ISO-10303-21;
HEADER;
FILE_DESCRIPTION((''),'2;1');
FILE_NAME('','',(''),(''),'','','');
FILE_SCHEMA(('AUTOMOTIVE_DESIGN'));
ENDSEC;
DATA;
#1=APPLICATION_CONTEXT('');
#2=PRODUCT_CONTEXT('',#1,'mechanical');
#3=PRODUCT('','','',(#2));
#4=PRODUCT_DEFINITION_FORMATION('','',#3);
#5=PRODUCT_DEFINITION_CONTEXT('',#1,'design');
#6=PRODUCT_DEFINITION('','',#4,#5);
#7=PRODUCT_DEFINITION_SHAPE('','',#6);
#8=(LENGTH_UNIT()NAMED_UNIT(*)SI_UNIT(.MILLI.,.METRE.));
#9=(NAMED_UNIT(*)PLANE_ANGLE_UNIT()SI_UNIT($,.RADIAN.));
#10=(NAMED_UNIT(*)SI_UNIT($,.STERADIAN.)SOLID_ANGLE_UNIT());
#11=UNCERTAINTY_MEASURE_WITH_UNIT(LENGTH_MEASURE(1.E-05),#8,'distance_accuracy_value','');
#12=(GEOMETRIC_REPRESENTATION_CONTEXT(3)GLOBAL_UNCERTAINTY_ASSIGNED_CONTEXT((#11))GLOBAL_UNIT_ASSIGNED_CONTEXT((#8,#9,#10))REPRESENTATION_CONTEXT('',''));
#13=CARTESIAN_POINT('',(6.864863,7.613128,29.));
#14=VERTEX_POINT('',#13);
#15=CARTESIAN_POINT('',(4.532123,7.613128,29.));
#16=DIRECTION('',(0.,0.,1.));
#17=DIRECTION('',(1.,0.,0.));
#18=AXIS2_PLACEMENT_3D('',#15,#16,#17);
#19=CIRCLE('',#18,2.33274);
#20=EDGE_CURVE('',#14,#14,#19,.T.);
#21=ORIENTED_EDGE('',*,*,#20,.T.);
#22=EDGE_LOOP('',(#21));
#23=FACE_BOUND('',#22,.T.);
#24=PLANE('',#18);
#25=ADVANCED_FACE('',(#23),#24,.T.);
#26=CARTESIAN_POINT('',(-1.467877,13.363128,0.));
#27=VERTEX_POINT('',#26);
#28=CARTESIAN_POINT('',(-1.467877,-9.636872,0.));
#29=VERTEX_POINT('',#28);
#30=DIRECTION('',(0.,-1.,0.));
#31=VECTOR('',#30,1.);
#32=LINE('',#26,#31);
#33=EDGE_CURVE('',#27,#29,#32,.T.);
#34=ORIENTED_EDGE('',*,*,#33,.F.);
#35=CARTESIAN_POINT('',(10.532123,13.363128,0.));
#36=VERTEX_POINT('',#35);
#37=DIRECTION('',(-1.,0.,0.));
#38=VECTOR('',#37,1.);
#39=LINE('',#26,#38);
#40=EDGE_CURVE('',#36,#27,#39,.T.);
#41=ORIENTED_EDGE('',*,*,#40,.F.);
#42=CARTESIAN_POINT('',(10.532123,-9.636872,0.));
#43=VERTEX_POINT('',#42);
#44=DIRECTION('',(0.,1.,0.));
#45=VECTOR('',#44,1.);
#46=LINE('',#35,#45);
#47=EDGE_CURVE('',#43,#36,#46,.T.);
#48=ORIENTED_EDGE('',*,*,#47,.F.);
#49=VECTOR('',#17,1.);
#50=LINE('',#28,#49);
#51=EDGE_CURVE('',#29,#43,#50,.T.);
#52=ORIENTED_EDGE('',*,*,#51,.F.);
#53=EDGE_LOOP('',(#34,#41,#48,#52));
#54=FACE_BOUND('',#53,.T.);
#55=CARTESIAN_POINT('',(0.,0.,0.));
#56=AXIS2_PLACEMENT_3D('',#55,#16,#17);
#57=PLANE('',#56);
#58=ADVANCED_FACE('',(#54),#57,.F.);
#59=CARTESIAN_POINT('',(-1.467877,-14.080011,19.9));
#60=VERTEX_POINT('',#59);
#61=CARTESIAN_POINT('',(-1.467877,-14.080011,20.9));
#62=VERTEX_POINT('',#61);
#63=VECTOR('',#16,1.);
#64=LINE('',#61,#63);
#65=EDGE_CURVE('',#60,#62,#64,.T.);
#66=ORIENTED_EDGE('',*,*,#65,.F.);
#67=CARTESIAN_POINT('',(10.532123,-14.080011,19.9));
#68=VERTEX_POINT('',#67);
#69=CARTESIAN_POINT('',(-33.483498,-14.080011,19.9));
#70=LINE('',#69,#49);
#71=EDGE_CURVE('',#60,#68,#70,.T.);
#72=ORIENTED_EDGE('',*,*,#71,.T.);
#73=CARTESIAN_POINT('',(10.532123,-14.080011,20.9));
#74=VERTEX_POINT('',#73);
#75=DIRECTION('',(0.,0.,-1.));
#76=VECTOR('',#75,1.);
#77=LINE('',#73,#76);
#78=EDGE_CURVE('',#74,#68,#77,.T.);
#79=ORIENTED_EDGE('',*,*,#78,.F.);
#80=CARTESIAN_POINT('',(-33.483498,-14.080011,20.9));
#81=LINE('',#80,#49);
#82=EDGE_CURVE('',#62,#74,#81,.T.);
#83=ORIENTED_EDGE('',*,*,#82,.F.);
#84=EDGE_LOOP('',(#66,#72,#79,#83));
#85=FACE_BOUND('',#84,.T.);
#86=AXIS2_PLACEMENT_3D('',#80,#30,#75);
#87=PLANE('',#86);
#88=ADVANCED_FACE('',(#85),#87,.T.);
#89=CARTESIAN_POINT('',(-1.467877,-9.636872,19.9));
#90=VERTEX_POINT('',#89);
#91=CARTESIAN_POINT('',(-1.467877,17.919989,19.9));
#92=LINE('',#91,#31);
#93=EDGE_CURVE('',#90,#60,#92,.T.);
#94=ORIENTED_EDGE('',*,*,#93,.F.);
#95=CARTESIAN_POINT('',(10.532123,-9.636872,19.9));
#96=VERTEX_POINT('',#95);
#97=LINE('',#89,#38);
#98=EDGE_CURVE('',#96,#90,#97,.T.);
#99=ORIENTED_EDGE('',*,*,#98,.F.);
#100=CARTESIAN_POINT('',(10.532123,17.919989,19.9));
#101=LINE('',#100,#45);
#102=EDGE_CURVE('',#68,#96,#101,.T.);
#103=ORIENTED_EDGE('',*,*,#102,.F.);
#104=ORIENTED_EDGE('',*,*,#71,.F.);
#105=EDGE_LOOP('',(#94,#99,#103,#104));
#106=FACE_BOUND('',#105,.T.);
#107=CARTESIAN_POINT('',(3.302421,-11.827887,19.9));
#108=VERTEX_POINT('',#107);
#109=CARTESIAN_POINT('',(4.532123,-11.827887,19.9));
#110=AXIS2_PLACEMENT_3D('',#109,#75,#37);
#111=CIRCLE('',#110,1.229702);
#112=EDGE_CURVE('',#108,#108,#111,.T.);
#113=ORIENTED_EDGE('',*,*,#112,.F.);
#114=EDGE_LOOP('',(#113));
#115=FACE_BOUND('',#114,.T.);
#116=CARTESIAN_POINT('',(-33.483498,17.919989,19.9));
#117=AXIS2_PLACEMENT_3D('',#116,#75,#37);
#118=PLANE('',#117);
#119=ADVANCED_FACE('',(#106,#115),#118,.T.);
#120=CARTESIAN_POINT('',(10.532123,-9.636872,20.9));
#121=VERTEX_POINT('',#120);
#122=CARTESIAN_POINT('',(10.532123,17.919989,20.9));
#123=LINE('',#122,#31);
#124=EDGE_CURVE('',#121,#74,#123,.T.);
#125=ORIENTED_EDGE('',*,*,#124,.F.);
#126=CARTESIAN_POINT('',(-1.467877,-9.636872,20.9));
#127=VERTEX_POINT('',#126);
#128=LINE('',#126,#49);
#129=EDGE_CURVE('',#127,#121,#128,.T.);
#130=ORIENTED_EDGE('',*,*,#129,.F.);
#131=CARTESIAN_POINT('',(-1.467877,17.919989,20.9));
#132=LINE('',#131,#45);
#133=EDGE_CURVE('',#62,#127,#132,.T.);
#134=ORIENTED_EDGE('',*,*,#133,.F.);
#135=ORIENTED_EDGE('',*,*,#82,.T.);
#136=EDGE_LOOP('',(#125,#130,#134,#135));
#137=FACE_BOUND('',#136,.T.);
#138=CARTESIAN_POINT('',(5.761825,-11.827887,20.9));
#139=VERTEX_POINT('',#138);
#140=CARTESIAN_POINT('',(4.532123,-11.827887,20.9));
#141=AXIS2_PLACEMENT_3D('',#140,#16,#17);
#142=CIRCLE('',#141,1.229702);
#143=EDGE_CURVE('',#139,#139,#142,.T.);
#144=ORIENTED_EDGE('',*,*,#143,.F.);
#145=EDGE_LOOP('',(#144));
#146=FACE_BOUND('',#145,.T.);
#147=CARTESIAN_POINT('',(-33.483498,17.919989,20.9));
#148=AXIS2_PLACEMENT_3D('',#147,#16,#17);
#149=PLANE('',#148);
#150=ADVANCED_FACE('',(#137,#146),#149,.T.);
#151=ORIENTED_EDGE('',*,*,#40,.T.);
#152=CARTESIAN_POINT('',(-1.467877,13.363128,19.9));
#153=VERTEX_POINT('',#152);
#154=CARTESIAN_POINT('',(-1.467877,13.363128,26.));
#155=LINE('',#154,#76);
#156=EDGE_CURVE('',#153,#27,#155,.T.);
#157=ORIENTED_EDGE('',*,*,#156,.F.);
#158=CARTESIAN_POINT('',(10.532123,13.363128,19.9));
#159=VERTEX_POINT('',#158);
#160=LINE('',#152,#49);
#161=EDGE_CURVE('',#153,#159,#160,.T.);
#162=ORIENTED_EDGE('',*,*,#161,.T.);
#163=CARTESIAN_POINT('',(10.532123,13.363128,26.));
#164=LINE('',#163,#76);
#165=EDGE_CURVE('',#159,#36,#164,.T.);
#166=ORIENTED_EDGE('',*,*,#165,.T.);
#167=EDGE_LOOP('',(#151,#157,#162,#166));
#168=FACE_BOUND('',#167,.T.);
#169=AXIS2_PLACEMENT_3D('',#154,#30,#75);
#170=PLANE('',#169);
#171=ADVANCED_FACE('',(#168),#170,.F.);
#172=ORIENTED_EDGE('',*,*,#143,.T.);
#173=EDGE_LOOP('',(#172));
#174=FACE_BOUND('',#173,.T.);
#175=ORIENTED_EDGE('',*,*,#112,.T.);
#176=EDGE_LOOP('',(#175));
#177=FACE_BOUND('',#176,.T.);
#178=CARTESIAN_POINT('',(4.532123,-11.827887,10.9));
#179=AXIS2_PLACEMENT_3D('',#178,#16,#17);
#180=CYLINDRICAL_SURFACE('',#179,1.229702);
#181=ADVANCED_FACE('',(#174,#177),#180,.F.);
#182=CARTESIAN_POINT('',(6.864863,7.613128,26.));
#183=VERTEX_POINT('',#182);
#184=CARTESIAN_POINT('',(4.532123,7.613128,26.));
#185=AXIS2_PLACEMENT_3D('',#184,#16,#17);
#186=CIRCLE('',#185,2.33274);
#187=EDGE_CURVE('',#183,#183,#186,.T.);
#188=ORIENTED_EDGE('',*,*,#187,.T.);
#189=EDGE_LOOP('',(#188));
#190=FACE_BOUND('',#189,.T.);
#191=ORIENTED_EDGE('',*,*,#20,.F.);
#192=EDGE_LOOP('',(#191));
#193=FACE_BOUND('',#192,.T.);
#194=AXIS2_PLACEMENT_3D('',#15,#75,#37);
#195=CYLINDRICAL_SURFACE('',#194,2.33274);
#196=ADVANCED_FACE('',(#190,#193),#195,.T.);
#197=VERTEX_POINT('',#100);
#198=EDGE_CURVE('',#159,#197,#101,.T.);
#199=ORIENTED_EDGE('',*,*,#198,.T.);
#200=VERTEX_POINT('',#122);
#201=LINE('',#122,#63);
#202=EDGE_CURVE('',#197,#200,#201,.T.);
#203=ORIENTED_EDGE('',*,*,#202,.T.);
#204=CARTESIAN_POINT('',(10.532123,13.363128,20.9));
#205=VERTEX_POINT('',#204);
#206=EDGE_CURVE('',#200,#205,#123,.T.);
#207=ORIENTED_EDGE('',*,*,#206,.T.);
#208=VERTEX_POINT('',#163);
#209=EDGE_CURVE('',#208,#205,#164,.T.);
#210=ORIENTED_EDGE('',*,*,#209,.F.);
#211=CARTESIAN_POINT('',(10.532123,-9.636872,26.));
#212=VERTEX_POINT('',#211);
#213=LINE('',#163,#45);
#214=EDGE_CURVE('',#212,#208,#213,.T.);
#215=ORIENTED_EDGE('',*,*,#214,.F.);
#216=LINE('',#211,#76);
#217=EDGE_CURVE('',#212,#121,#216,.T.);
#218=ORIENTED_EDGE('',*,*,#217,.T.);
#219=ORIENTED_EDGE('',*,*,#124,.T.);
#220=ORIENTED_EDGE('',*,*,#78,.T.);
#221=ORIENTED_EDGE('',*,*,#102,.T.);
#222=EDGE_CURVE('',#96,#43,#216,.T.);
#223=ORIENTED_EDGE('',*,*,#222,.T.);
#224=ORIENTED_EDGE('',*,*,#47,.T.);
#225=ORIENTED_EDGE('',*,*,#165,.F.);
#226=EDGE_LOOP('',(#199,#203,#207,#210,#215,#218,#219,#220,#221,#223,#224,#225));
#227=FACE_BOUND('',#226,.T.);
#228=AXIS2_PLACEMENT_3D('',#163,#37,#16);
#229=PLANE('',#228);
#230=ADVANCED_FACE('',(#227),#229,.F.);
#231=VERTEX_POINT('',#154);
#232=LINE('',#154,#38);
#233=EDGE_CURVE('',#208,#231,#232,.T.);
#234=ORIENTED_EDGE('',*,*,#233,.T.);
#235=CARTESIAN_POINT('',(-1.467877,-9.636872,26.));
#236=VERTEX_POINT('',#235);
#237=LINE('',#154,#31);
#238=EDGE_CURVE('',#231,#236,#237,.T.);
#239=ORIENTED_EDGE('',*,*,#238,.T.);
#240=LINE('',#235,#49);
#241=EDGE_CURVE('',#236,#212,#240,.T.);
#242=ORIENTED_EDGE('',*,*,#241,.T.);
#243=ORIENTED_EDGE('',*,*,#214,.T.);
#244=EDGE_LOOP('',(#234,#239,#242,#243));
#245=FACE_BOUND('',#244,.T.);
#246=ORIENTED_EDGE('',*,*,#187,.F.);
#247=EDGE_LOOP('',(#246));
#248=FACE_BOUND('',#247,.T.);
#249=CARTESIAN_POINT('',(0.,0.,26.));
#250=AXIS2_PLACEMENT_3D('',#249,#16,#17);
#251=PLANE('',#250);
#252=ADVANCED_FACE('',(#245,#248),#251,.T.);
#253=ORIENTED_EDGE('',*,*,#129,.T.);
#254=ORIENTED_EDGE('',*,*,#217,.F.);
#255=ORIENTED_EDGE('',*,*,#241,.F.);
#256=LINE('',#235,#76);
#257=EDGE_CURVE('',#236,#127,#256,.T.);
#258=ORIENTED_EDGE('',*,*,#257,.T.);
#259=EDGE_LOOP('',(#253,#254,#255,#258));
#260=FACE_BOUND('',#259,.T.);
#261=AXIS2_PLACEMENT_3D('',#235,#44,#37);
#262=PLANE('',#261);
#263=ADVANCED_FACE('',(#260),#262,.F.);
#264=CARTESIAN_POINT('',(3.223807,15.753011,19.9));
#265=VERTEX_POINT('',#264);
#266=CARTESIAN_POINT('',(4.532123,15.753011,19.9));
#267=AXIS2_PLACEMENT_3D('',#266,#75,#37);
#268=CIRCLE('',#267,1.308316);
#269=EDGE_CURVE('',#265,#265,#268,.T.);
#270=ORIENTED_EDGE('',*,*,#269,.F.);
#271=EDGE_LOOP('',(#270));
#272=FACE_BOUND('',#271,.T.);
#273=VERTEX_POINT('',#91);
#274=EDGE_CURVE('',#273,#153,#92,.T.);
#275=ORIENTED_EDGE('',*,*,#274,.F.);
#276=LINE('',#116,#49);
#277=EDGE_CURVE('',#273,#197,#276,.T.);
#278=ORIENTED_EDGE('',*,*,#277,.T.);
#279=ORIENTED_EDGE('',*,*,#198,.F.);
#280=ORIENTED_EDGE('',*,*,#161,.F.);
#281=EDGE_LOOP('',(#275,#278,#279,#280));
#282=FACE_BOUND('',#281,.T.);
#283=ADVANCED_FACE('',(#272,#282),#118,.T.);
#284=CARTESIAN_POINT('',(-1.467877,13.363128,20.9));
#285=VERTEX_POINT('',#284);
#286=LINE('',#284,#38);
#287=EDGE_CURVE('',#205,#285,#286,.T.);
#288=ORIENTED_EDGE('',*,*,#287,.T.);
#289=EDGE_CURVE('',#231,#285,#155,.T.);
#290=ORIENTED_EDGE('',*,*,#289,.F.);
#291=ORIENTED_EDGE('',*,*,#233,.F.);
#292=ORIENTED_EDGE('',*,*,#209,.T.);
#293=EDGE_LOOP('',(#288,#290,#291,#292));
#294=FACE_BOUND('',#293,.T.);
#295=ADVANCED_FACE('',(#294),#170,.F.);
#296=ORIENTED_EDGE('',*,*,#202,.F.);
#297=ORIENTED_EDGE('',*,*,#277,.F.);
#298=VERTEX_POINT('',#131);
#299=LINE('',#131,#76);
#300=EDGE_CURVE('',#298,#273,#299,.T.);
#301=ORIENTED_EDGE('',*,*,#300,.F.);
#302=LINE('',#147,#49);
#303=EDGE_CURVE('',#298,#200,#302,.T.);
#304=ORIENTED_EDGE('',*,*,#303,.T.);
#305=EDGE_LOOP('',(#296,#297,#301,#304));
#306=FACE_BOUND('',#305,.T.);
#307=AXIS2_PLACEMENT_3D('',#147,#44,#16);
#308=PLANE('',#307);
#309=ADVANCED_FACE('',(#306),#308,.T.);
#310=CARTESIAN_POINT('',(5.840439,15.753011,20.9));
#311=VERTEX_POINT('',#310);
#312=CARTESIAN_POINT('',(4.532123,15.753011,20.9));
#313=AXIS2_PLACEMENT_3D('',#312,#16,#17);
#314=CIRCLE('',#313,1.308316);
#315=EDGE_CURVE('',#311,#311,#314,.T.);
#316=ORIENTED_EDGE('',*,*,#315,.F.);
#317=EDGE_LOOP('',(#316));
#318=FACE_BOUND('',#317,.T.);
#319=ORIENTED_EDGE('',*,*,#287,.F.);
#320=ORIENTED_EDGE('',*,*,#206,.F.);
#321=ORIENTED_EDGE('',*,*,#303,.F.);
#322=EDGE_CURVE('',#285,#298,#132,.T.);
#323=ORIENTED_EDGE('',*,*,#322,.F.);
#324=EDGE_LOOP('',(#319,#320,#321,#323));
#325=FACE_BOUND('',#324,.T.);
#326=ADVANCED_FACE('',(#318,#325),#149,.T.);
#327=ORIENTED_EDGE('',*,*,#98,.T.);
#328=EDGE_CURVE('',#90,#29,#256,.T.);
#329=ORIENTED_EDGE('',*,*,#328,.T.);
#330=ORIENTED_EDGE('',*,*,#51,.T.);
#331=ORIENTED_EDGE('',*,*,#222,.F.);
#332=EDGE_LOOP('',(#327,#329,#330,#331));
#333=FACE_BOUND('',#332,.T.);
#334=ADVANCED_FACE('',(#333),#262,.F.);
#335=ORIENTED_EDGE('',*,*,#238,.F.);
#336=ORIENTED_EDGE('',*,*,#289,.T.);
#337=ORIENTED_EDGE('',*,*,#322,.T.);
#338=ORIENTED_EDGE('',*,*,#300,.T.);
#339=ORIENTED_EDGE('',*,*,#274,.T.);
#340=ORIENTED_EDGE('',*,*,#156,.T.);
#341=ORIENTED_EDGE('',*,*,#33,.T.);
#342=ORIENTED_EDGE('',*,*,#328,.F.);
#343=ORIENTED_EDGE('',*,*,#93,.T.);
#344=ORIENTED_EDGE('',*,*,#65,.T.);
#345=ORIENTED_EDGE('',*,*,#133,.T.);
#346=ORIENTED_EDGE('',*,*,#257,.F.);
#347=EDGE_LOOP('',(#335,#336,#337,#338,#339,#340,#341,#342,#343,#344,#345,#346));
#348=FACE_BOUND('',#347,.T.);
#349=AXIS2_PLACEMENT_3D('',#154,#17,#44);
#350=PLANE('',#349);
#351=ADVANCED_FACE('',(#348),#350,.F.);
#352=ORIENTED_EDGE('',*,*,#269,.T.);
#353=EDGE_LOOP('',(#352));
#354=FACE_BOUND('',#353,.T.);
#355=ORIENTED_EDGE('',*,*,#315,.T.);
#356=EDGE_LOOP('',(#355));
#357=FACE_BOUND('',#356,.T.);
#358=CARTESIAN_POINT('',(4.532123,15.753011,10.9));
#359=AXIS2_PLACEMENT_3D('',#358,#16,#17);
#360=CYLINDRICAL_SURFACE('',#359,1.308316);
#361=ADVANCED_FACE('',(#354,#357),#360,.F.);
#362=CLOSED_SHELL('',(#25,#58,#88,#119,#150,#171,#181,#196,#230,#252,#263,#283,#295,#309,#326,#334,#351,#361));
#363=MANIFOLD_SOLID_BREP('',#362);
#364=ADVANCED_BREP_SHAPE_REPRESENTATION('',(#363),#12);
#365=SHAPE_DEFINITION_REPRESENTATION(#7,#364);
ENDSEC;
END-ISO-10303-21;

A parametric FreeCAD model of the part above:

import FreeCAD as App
import Part
import Sketcher

V = App.Vector
Q = App.Units.Quantity

doc = App.newDocument("Part")
params = doc.addObject("Spreadsheet::Sheet", "Params")
for row, (alias, value) in enumerate([
    ("sketch1_width", "12 mm"),
    ("sketch1_height", "23 mm"),
    ("pad1_length", "26 mm"),
    ("pad2_length", "3 mm"),
    ("sketch3_width", "32 mm"),
    ("sketch3_height", "1 mm"),
    ("pad3_length", "12 mm"),
    ("pocket1_length", "10 mm"),
], start=1):
    params.set(f"A{row}", alias)
    params.set(f"B{row}", "=" + value)
    params.setAlias(f"B{row}", alias)

body = doc.addObject("PartDesign::Body", "Body")

sketch1 = body.newObject("Sketcher::SketchObject", "Sketch")
sketch1.AttachmentSupport = (doc.getObject("XY_Plane"), [""])
sketch1.MapMode = "FlatFace"
sketch1.addGeometry(Part.LineSegment(V(-1.467877, 13.363128, 0), V(-1.467877, -9.636872, 0)), False)
sketch1.addGeometry(Part.LineSegment(V(-1.467877, -9.636872, 0), V(10.532123, -9.636872, 0)), False)
sketch1.addGeometry(Part.LineSegment(V(10.532123, -9.636872, 0), V(10.532123, 13.363128, 0)), False)
sketch1.addGeometry(Part.LineSegment(V(10.532123, 13.363128, 0), V(-1.467877, 13.363128, 0)), False)
sketch1.addConstraint(Sketcher.Constraint("Coincident", 0, 2, 1, 1))
sketch1.addConstraint(Sketcher.Constraint("Coincident", 1, 2, 2, 1))
sketch1.addConstraint(Sketcher.Constraint("Coincident", 2, 2, 3, 1))
sketch1.addConstraint(Sketcher.Constraint("Coincident", 3, 2, 0, 1))
sketch1.addConstraint(Sketcher.Constraint("Vertical", 0))
sketch1.addConstraint(Sketcher.Constraint("Horizontal", 1))
sketch1.addConstraint(Sketcher.Constraint("Vertical", 2))
sketch1.addConstraint(Sketcher.Constraint("Horizontal", 3))
sketch1.addConstraint(Sketcher.Constraint("DistanceX", 1, 1, 1, 2, Q("12 mm")))
sketch1.addConstraint(Sketcher.Constraint("DistanceY", 0, 2, 0, 1, Q("23 mm")))
sketch1.addConstraint(Sketcher.Constraint("DistanceY", 0, 2, -1, 1, Q("9.636872 mm")))
sketch1.addConstraint(Sketcher.Constraint("DistanceX", 0, 2, -1, 1, Q("1.467877 mm")))
sketch1.setExpression("Constraints[8]", "Params.sketch1_width")
sketch1.setExpression("Constraints[9]", "Params.sketch1_height")
pad1 = body.newObject("PartDesign::Pad", "Pad")
pad1.Profile = sketch1
pad1.setExpression("Length", "Params.pad1_length")

sketch2 = body.newObject("Sketcher::SketchObject", "Sketch001")
sketch2.AttachmentSupport = (doc.getObject("XY_Plane"), [""])
sketch2.MapMode = "FlatFace"
sketch2.AttachmentOffset = App.Placement(V(0, 0, 26), App.Rotation())
sketch2.addGeometry(Part.Circle(V(4.532123, 7.613128, 0), V(0, 0, 1), 2.33274), False)
sketch2.addConstraint(Sketcher.Constraint("Diameter", 0, Q("4.665481 mm")))
sketch2.addConstraint(Sketcher.Constraint("DistanceY", -1, 1, 0, 3, Q("7.613128 mm")))
sketch2.addConstraint(Sketcher.Constraint("DistanceX", -1, 1, 0, 3, Q("4.532123 mm")))
pad2 = body.newObject("PartDesign::Pad", "Pad001")
pad2.Profile = sketch2
pad2.setExpression("Length", "Params.pad2_length")

sketch3 = body.newObject("Sketcher::SketchObject", "Sketch002")
sketch3.AttachmentSupport = (doc.getObject("YZ_Plane"), [""])
sketch3.MapMode = "FlatFace"
sketch3.AttachmentOffset = App.Placement(V(0, 0, 10.532123), App.Rotation())
sketch3.addGeometry(Part.LineSegment(V(17.919989, 20.9, 0), V(-14.080011, 20.9, 0)), False)
sketch3.addGeometry(Part.LineSegment(V(-14.080011, 20.9, 0), V(-14.080011, 19.9, 0)), False)
sketch3.addGeometry(Part.LineSegment(V(-14.080011, 19.9, 0), V(17.919989, 19.9, 0)), False)
sketch3.addGeometry(Part.LineSegment(V(17.919989, 19.9, 0), V(17.919989, 20.9, 0)), False)
sketch3.addConstraint(Sketcher.Constraint("Coincident", 0, 2, 1, 1))
sketch3.addConstraint(Sketcher.Constraint("Coincident", 1, 2, 2, 1))
sketch3.addConstraint(Sketcher.Constraint("Coincident", 2, 2, 3, 1))
sketch3.addConstraint(Sketcher.Constraint("Coincident", 3, 2, 0, 1))
sketch3.addConstraint(Sketcher.Constraint("Horizontal", 0))
sketch3.addConstraint(Sketcher.Constraint("Vertical", 1))
sketch3.addConstraint(Sketcher.Constraint("Horizontal", 2))
sketch3.addConstraint(Sketcher.Constraint("Vertical", 3))
sketch3.addConstraint(Sketcher.Constraint("DistanceX", 0, 2, 0, 1, Q("32 mm")))
sketch3.addConstraint(Sketcher.Constraint("DistanceY", 1, 2, 1, 1, Q("1 mm")))
sketch3.addConstraint(Sketcher.Constraint("DistanceY", -1, 1, 0, 2, Q("20.9 mm")))
sketch3.addConstraint(Sketcher.Constraint("DistanceX", 0, 2, -1, 1, Q("14.080011 mm")))
sketch3.setExpression("Constraints[8]", "Params.sketch3_width")
sketch3.setExpression("Constraints[9]", "Params.sketch3_height")
pad3 = body.newObject("PartDesign::Pad", "Pad002")
pad3.Profile = sketch3
pad3.setExpression("Length", "Params.pad3_length")
pad3.Reversed = True

sketch4 = body.newObject("Sketcher::SketchObject", "Sketch003")
sketch4.AttachmentSupport = (doc.getObject("XY_Plane"), [""])
sketch4.MapMode = "FlatFace"
sketch4.AttachmentOffset = App.Placement(V(0, 0, 20.9), App.Rotation())
sketch4.addGeometry(Part.Circle(V(4.532123, 15.753011, 0), V(0, 0, 1), 1.308316), False)
sketch4.addGeometry(Part.Circle(V(4.532123, -11.827887, 0), V(0, 0, 1), 1.229702), False)
sketch4.addConstraint(Sketcher.Constraint("Vertical", 0, 3, 1, 3))
sketch4.addConstraint(Sketcher.Constraint("Diameter", 0, Q("2.616633 mm")))
sketch4.addConstraint(Sketcher.Constraint("Diameter", 1, Q("2.459404 mm")))
sketch4.addConstraint(Sketcher.Constraint("DistanceY", -1, 1, 0, 3, Q("15.753011 mm")))
sketch4.addConstraint(Sketcher.Constraint("DistanceX", -1, 1, 0, 3, Q("4.532123 mm")))
sketch4.addConstraint(Sketcher.Constraint("DistanceY", 1, 3, -1, 1, Q("11.827887 mm")))
pocket1 = body.newObject("PartDesign::Pocket", "Pocket")
pocket1.Profile = sketch4
pocket1.setExpression("Length", "Params.pocket1_length")

doc.recompute()
